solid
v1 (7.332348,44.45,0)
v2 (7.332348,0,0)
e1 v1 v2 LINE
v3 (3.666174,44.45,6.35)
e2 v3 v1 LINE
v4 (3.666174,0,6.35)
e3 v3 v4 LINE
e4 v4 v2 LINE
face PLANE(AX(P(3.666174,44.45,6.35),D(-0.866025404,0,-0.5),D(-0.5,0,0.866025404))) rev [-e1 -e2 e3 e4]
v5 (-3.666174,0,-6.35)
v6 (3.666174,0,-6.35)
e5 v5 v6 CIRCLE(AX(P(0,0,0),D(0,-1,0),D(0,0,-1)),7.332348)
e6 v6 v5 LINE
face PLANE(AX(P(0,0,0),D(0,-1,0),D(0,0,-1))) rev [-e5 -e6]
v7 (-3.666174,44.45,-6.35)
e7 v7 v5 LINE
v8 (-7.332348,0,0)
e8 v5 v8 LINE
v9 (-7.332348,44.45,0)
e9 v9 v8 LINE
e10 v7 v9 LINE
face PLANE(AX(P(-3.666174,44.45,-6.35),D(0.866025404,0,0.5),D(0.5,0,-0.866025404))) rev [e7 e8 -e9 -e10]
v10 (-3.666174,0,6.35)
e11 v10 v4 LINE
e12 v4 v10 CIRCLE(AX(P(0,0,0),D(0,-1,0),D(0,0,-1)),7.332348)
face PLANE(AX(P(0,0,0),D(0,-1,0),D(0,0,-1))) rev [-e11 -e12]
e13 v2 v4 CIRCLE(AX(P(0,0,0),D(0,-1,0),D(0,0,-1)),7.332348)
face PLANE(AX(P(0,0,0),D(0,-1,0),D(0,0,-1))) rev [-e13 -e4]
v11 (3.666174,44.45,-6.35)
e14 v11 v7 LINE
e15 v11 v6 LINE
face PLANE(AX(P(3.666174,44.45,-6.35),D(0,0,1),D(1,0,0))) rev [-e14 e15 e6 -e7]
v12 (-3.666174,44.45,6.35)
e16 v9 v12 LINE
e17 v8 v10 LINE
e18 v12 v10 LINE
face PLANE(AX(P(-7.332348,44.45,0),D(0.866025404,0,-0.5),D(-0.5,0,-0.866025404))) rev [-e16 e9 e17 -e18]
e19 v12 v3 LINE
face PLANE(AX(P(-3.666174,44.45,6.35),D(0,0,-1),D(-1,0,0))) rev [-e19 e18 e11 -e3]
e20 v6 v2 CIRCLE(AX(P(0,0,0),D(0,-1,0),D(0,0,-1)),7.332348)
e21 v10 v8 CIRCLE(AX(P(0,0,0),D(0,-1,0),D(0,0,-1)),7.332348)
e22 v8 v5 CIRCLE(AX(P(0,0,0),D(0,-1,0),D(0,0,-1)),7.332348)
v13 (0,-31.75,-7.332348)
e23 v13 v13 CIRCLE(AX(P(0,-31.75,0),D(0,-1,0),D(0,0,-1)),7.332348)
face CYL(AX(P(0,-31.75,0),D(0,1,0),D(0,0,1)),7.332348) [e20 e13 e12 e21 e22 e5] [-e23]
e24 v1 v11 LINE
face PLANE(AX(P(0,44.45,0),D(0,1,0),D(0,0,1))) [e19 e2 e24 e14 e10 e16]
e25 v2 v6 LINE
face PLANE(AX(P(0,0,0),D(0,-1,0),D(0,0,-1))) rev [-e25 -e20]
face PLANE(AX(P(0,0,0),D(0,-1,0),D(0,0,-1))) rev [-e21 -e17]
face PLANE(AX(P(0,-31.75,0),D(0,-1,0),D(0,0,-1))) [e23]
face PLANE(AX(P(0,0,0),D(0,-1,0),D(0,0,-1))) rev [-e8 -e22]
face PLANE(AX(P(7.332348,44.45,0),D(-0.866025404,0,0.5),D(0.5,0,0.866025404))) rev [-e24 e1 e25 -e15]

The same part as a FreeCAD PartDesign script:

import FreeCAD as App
import Part
import Sketcher
Q = App.Units.Quantity


def add_polygon(sketch, points):
    """Adds a closed chain of lines whose ends are joined by coincident constraints."""
    first, n = sketch.GeometryCount, len(points)
    for a, b in zip(points, points[1:] + points[:1]):
        sketch.addGeometry(Part.LineSegment(App.Vector(*a, 0), App.Vector(*b, 0)), False)
    for i in range(n):
        sketch.addConstraint(Sketcher.Constraint("Coincident", first + i, 2, first + (i + 1) % n, 1))

doc = App.newDocument("Part")
body = doc.addObject("PartDesign::Body", "Body")

# Sketch on XZ plane
sketch1 = body.newObject("Sketcher::SketchObject", "Sketch")
sketch1.AttachmentSupport = (doc.getObject("XZ_Plane"), [""])
sketch1.MapMode = "FlatFace"
add_polygon(sketch1, [(7, 0), (4, -6), (-4, -6), (-7, 0), (-4, 6), (4, 6)])  # lines 0-5
sketch1.addConstraint(Sketcher.Constraint("Horizontal", 1))
sketch1.addConstraint(Sketcher.Constraint("Horizontal", 4))
sketch1.addConstraint(Sketcher.Constraint("Symmetric", 0, 2, 3, 2, -1, 1))
sketch1.addConstraint(Sketcher.Constraint("Symmetric", 2, 2, 5, 2, -1, 1))
sketch1.addConstraint(Sketcher.Constraint("PointOnObject", 2, 2, -1))
sketch1.addConstraint(Sketcher.Constraint("Parallel", 2, 5))
sketch1.addConstraint(Sketcher.Constraint("Vertical", 1, 2, 3, 2))
sketch1.addConstraint(Sketcher.Constraint("Angle", 0, Q("-120 deg")))
sketch1.addConstraint(Sketcher.Constraint("DistanceY", 1, 2, 3, 2, Q("0.5 in")))
sketch1.addConstraint(Sketcher.Constraint("DistanceX", 1, 2, 1, 1, Q("7.332348 mm")))
pad1 = body.newObject("PartDesign::Pad", "Pad")
pad1.Profile = sketch1
pad1.Length = Q("1.75 in")
pad1.Reversed = True

# Sketch on XZ plane
sketch2 = body.newObject("Sketcher::SketchObject", "Sketch001")
sketch2.AttachmentSupport = (doc.getObject("XZ_Plane"), [""])
sketch2.MapMode = "FlatFace"
sketch2.addGeometry(Part.Circle(App.Vector(0, 0, 0), App.Vector(0, 0, 1), 7), False)
sketch2.addConstraint(Sketcher.Constraint("Coincident", 0, 3, -1, 1))
sketch2.addConstraint(Sketcher.Constraint("Diameter", 0, Q("14.664697 mm")))
pad2 = body.newObject("PartDesign::Pad", "Pad001")
pad2.Profile = sketch2
pad2.Length = Q("1.25 in")

doc.recompute()
